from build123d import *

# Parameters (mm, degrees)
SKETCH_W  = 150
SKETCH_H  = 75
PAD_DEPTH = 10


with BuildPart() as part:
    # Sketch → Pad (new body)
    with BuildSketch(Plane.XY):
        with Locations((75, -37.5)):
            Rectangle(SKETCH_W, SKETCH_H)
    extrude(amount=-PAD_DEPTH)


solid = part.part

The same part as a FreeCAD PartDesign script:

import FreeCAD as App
import Part
import Sketcher

V = App.Vector

doc = App.newDocument("Part")
body = doc.addObject("PartDesign::Body", "Body")

# Sketch on XY plane
sketch1 = doc.addObject("Sketcher::SketchObject", "Sketch")
body.addObject(sketch1)
sketch1.AttachmentSupport = (doc.XY_Plane, [""])
sketch1.MapMode = "FlatFace"
sketch1.addGeometry(Part.LineSegment(V(0, 0, 0), V(0, -75, 0)), False)
sketch1.addGeometry(Part.LineSegment(V(0, -75, 0), V(150, -75, 0)), False)
sketch1.addGeometry(Part.LineSegment(V(150, -75, 0), V(150, 0, 0)), False)
sketch1.addGeometry(Part.LineSegment(V(150, 0, 0), V(0, 0, 0)), False)
sketch1.addConstraint(Sketcher.Constraint("Coincident", 0, 2, 1, 1))
sketch1.addConstraint(Sketcher.Constraint("Coincident", 1, 2, 2, 1))
sketch1.addConstraint(Sketcher.Constraint("Coincident", 2, 2, 3, 1))
sketch1.addConstraint(Sketcher.Constraint("Coincident", 3, 2, 0, 1))
sketch1.addConstraint(Sketcher.Constraint("Vertical", 0))
sketch1.addConstraint(Sketcher.Constraint("Horizontal", 1))
sketch1.addConstraint(Sketcher.Constraint("Vertical", 2))
sketch1.addConstraint(Sketcher.Constraint("Horizontal", 3))
sketch1.addConstraint(Sketcher.Constraint("Coincident", 3, 2, -1, 1))
sketch1.addConstraint(Sketcher.Constraint("DistanceX", 1, 1, 1, 2, 150.0))
sketch1.addConstraint(Sketcher.Constraint("DistanceY", 0, 2, 0, 1, 75.0))
pad1 = doc.addObject("PartDesign::Pad", "Pad")
body.addObject(pad1)
pad1.Profile = sketch1
pad1.Length = 10
pad1.Reversed = True

doc.recompute()
